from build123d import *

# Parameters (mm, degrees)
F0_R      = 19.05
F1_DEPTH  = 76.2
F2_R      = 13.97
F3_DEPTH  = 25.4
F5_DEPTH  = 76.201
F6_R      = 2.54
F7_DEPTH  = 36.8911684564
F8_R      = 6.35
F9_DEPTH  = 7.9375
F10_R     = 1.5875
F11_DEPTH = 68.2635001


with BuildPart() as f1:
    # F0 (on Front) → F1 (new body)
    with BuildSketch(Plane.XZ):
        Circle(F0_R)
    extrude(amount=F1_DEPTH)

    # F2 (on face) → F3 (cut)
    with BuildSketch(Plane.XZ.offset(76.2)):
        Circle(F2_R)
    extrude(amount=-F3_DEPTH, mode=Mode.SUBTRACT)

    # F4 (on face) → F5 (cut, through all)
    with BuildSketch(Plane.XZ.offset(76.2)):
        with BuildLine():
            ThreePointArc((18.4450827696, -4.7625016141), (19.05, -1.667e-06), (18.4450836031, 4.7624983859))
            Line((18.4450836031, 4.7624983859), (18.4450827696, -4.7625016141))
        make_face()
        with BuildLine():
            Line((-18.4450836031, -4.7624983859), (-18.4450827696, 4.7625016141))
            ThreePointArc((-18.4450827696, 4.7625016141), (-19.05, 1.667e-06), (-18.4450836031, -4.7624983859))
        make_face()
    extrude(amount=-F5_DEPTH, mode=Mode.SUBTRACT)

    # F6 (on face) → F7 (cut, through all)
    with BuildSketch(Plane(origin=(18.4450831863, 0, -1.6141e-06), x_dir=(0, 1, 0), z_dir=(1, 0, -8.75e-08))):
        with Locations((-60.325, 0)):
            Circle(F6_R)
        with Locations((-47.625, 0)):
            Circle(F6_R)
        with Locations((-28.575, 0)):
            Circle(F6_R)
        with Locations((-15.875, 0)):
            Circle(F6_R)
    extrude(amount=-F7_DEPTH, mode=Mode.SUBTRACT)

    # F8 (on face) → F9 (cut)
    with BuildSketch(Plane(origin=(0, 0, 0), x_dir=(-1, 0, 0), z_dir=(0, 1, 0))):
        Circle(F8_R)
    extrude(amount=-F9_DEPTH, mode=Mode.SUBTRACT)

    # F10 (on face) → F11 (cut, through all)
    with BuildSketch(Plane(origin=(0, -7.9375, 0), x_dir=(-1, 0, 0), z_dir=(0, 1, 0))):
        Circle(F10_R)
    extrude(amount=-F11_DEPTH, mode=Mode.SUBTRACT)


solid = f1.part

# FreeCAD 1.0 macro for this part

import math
import FreeCAD as App
import Part
import Sketcher
Q = App.Units.Quantity

doc = App.newDocument("Part")
body = doc.addObject("PartDesign::Body", "Body")

# Sketch on XZ plane
sketch1 = body.newObject("Sketcher::SketchObject", "Sketch")
sketch1.AttachmentSupport = (doc.getObject("XZ_Plane"), [""])
sketch1.MapMode = "FlatFace"
sketch1.addGeometry(Part.Circle(App.Vector(0, 0, 0), App.Vector(0, 0, 1), 19.05), False)
sketch1.addConstraint([
    Sketcher.Constraint("Coincident", 0, 3, -1, 1),
    Sketcher.Constraint("Diameter", 0, Q("1.5 in")),
])
pad1 = body.newObject("PartDesign::Pad", "Pad")
pad1.Profile = sketch1
pad1.Length = Q("3 in")

# Sketch on XZ plane
sketch2 = body.newObject("Sketcher::SketchObject", "Sketch001")
sketch2.AttachmentSupport = (doc.getObject("XZ_Plane"), [""])
sketch2.MapMode = "FlatFace"
sketch2.AttachmentOffset = App.Placement(App.Vector(0, 0, 3 * 25.4), App.Rotation())
sketch2.addGeometry(Part.Circle(App.Vector(0, 0, 0), App.Vector(0, 0, 1), 13.97), False)
sketch2.addConstraint([
    Sketcher.Constraint("Coincident", 0, 3, -1, 1),
    Sketcher.Constraint("Diameter", 0, Q("1.1 in")),
])
pocket1 = body.newObject("PartDesign::Pocket", "Pocket")
pocket1.Profile = sketch2
pocket1.Length = Q("1 in")

# Sketch on XZ plane
sketch3 = body.newObject("Sketcher::SketchObject", "Sketch002")
sketch3.AttachmentSupport = (doc.getObject("XZ_Plane"), [""])
sketch3.MapMode = "FlatFace"
sketch3.AttachmentOffset = App.Placement(App.Vector(0, 0, 3 * 25.4), App.Rotation())
sketch3.addGeometry([
    Part.ArcOfCircle(Part.Circle(App.Vector(0, 0, 0), App.Vector(0, 0, 1), 19.05), math.radians(-14.477517), math.radians(14.477507)),
    Part.LineSegment(App.Vector(18.445084, 4.762498, 0), App.Vector(18.445083, -4.762502, 0)),
    Part.LineSegment(App.Vector(-18.445084, -4.762498, 0), App.Vector(-18.445083, 4.762502, 0)),
    Part.ArcOfCircle(Part.Circle(App.Vector(0, 0, 0), App.Vector(0, 0, 1), 19.05), math.radians(165.522483), math.radians(194.477507)),
], False)
sketch3.addConstraint([
    Sketcher.Constraint("Coincident", 0, 1, 1, 2),
    Sketcher.Constraint("Coincident", 1, 1, 0, 2),
    Sketcher.Constraint("Coincident", 2, 1, 3, 2),
    Sketcher.Constraint("Coincident", 3, 1, 2, 2),
    Sketcher.Constraint("Vertical", 1),
    Sketcher.Constraint("Vertical", 2),
    Sketcher.Constraint("Coincident", 0, 3, -1, 1),
    Sketcher.Constraint("Coincident", 3, 3, -1, 1),
    Sketcher.Constraint("Equal", 0, 3),
    Sketcher.Constraint("Equal", 1, 2),
    Sketcher.Constraint("Radius", 0, Q("0.75 in")),
    Sketcher.Constraint("DistanceY", 1, 2, 1, 1, Q("0.375 in")),
])
pocket2 = body.newObject("PartDesign::Pocket", "Pocket001")
pocket2.Profile = sketch3
pocket2.Type = "ThroughAll"

# Sketch on YZ plane
sketch4 = body.newObject("Sketcher::SketchObject", "Sketch003")
sketch4.AttachmentSupport = (doc.getObject("YZ_Plane"), [""])
sketch4.MapMode = "FlatFace"
sketch4.AttachmentOffset = App.Placement(App.Vector(0, 0, 18.445083), App.Rotation())
sketch4.addGeometry([
    Part.Circle(App.Vector(-60.325, -0.000002, 0), App.Vector(0, 0, 1), 2.54),
    Part.Circle(App.Vector(-47.625, -0.000002, 0), App.Vector(0, 0, 1), 2.54),
    Part.Circle(App.Vector(-28.575, -0.000002, 0), App.Vector(0, 0, 1), 2.54),
    Part.Circle(App.Vector(-15.875, -0.000002, 0), App.Vector(0, 0, 1), 2.54),
], False)
sketch4.addConstraint([
    Sketcher.Constraint("Equal", 0, 1),
    Sketcher.Constraint("Equal", 1, 2),
    Sketcher.Constraint("Equal", 2, 3),
    Sketcher.Constraint("PointOnObject", 0, 3, -1),
    Sketcher.Constraint("PointOnObject", 1, 3, -1),
    Sketcher.Constraint("PointOnObject", 2, 3, -1),
    Sketcher.Constraint("PointOnObject", 3, 3, -1),
    Sketcher.Constraint("Diameter", 0, Q("0.2 in")),
    Sketcher.Constraint("DistanceX", 0, 3, 1, 3, Q("0.5 in")),
    Sketcher.Constraint("DistanceX", 2, 3, 3, 3, Q("0.5 in")),
    Sketcher.Constraint("DistanceX", 1, 3, 2, 3, Q("0.75 in")),
    Sketcher.Constraint("DistanceX", 0, 3, -1, 1, Q("2.375 in")),
])
pocket3 = body.newObject("PartDesign::Pocket", "Pocket002")
pocket3.Profile = sketch4
pocket3.Type = "ThroughAll"

# Sketch on XZ plane
sketch5 = body.newObject("Sketcher::SketchObject", "Sketch004")
sketch5.AttachmentSupport = (doc.getObject("XZ_Plane"), [""])
sketch5.MapMode = "FlatFace"
sketch5.addGeometry(Part.Circle(App.Vector(0, 0, 0), App.Vector(0, 0, 1), 6.35), False)
sketch5.addConstraint([
    Sketcher.Constraint("Coincident", 0, 3, -1, 1),
    Sketcher.Constraint("Diameter", 0, Q("0.5 in")),
])
pocket4 = body.newObject("PartDesign::Pocket", "Pocket003")
pocket4.Profile = sketch5
pocket4.Length = Q("0.3125 in")
pocket4.Reversed = True

# Sketch on XZ plane
sketch6 = body.newObject("Sketcher::SketchObject", "Sketch005")
sketch6.AttachmentSupport = (doc.getObject("XZ_Plane"), [""])
sketch6.MapMode = "FlatFace"
sketch6.AttachmentOffset = App.Placement(App.Vector(0, 0, 0.3125 * 25.4), App.Rotation())
sketch6.addGeometry(Part.Circle(App.Vector(0, 0, 0), App.Vector(0, 0, 1), 1.5875), False)
sketch6.addConstraint([
    Sketcher.Constraint("Coincident", 0, 3, -1, 1),
    Sketcher.Constraint("Diameter", 0, Q("0.125 in")),
])
pocket5 = body.newObject("PartDesign::Pocket", "Pocket004")
pocket5.Profile = sketch6
pocket5.Type = "ThroughAll"
pocket5.Reversed = True

doc.recompute()
